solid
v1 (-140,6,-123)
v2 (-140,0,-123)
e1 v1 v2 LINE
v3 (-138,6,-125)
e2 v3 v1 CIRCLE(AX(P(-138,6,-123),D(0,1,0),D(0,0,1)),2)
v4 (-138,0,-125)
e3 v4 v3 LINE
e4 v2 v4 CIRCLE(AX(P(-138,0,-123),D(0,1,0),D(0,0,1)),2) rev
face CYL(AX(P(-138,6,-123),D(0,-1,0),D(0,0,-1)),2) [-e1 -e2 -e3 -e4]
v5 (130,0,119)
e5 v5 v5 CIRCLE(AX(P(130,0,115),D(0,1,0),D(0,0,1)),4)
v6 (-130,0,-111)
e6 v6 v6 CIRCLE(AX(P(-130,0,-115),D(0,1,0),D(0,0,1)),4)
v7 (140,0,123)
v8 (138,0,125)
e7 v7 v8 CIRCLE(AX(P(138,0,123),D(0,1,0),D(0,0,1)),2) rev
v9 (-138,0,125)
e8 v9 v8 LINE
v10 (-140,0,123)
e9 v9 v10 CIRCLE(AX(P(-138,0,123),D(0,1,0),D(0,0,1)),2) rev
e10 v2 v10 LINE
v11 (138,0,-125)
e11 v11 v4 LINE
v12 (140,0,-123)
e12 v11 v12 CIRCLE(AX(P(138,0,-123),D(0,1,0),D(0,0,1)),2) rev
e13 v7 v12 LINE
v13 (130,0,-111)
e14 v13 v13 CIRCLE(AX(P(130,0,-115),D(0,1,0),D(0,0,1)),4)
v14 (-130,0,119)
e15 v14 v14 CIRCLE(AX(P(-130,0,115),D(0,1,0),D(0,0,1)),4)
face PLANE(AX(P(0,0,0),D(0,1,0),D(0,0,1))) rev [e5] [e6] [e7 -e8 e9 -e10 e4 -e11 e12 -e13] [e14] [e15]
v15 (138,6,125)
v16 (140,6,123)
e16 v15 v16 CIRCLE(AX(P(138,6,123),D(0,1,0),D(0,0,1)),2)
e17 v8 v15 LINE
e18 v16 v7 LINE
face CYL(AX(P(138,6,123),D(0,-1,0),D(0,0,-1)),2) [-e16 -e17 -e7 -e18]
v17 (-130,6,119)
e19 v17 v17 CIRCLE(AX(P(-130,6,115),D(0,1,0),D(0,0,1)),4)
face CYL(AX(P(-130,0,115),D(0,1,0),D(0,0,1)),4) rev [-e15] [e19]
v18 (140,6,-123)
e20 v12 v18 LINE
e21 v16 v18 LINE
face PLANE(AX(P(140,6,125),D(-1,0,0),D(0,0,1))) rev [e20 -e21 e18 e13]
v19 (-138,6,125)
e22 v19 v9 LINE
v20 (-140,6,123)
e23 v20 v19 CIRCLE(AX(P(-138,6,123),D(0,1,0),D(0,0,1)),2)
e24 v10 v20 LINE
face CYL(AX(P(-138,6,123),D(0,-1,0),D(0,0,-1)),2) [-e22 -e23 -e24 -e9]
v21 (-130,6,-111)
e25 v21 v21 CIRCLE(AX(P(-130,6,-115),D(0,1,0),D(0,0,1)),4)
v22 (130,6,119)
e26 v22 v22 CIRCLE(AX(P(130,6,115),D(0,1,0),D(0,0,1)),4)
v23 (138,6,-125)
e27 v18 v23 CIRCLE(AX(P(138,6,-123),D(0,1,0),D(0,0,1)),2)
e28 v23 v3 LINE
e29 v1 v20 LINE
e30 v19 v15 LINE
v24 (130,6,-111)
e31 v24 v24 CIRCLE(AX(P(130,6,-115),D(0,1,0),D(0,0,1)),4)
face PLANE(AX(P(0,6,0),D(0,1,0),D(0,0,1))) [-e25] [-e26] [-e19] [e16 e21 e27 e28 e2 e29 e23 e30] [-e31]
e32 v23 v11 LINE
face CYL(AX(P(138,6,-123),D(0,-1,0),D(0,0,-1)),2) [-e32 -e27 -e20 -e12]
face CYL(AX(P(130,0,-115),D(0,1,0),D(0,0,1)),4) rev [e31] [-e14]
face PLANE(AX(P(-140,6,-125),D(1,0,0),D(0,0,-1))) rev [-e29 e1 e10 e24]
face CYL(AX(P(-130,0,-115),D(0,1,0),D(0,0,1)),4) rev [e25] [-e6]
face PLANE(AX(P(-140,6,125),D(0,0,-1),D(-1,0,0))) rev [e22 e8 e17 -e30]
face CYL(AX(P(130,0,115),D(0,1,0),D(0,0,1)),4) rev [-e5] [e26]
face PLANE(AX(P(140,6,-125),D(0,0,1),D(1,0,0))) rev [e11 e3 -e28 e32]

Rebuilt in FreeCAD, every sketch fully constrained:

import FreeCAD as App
import Part
import Sketcher

V = App.Vector
Q = App.Units.Quantity


def edges_at(feature, points):
    """Names of the edges that pass closest to the given points."""
    edges = feature.Shape.Edges
    near = lambda p: min(range(len(edges)), key=lambda i: edges[i].distToShape(Part.Vertex(*p))[0])
    return sorted({f"Edge{near(p) + 1}" for p in points})


def add_polygon(sketch, points):
    """Adds a closed chain of lines whose ends are joined by coincident constraints."""
    first, n = sketch.GeometryCount, len(points)
    for a, b in zip(points, points[1:] + points[:1]):
        sketch.addGeometry(Part.LineSegment(App.Vector(*a, 0), App.Vector(*b, 0)), False)
    for i in range(n):
        sketch.addConstraint(Sketcher.Constraint("Coincident", first + i, 2, first + (i + 1) % n, 1))

doc = App.newDocument("Part")
body = doc.addObject("PartDesign::Body", "Body")

# Sketch on XZ plane
sketch1 = doc.addObject("Sketcher::SketchObject", "Sketch")
body.addObject(sketch1)
sketch1.AttachmentSupport = (doc.XZ_Plane, [""])
sketch1.MapMode = "FlatFace"
add_polygon(sketch1, [(-140, -125), (-140, 125), (140, 125), (140, -125)])  # lines 0-3
sketch1.addConstraint([
    Sketcher.Constraint("Vertical", 0),
    Sketcher.Constraint("Horizontal", 1),
    Sketcher.Constraint("Vertical", 2),
    Sketcher.Constraint("Horizontal", 3),
    Sketcher.Constraint("Symmetric", 0, 2, 2, 2, -1, 1),
    Sketcher.Constraint("DistanceX", 1, 1, 1, 2, Q("280 mm")),
    Sketcher.Constraint("DistanceY", 0, 1, 0, 2, Q("250 mm")),
])
pad1 = doc.addObject("PartDesign::Pad", "Pad")
body.addObject(pad1)
pad1.Profile = sketch1
pad1.Length = 6
pad1.Reversed = True
doc.recompute()

fillet = doc.addObject("PartDesign::Fillet", "Fillet")
body.addObject(fillet)
fillet.Base = (pad1, edges_at(pad1, [
    (140, 3, -125),
    (140, 3, 125),
    (-140, 3, 125),
    (-140, 3, -125),
]))
fillet.Radius = 2

# Sketch on XZ plane
sketch2 = doc.addObject("Sketcher::SketchObject", "Sketch001")
body.addObject(sketch2)
sketch2.AttachmentSupport = (doc.XZ_Plane, [""])
sketch2.MapMode = "FlatFace"
sketch2.AttachmentOffset = App.Placement(V(0, 0, -6), App.Rotation())
sketch2.addGeometry([
    Part.Circle(V(-130, -115, 0), V(0, 0, 1), 4),
    Part.Circle(V(130, -115, 0), V(0, 0, 1), 4),
    Part.Circle(V(130, 115, 0), V(0, 0, 1), 4),
    Part.Circle(V(-130, 115, 0), V(0, 0, 1), 4),
], False)
sketch2.addConstraint([
    Sketcher.Constraint("Equal", 0, 1),
    Sketcher.Constraint("Equal", 1, 2),
    Sketcher.Constraint("Equal", 2, 3),
    Sketcher.Constraint("Symmetric", 0, 3, 2, 3, -1, 1),
    Sketcher.Constraint("Symmetric", 1, 3, 3, 3, -1, 1),
    Sketcher.Constraint("Symmetric", 0, 3, 1, 3, -2),
    Sketcher.Constraint("Diameter", 0, Q("8 mm")),
    Sketcher.Constraint("DistanceX", 0, 3, -1, 1, Q("130 mm")),
    Sketcher.Constraint("DistanceY", 0, 3, -1, 1, Q("115 mm")),
])
pocket1 = doc.addObject("PartDesign::Pocket", "Pocket")
body.addObject(pocket1)
pocket1.Profile = sketch2
pocket1.Type = "ThroughAll"
pocket1.Reversed = True

doc.recompute()
